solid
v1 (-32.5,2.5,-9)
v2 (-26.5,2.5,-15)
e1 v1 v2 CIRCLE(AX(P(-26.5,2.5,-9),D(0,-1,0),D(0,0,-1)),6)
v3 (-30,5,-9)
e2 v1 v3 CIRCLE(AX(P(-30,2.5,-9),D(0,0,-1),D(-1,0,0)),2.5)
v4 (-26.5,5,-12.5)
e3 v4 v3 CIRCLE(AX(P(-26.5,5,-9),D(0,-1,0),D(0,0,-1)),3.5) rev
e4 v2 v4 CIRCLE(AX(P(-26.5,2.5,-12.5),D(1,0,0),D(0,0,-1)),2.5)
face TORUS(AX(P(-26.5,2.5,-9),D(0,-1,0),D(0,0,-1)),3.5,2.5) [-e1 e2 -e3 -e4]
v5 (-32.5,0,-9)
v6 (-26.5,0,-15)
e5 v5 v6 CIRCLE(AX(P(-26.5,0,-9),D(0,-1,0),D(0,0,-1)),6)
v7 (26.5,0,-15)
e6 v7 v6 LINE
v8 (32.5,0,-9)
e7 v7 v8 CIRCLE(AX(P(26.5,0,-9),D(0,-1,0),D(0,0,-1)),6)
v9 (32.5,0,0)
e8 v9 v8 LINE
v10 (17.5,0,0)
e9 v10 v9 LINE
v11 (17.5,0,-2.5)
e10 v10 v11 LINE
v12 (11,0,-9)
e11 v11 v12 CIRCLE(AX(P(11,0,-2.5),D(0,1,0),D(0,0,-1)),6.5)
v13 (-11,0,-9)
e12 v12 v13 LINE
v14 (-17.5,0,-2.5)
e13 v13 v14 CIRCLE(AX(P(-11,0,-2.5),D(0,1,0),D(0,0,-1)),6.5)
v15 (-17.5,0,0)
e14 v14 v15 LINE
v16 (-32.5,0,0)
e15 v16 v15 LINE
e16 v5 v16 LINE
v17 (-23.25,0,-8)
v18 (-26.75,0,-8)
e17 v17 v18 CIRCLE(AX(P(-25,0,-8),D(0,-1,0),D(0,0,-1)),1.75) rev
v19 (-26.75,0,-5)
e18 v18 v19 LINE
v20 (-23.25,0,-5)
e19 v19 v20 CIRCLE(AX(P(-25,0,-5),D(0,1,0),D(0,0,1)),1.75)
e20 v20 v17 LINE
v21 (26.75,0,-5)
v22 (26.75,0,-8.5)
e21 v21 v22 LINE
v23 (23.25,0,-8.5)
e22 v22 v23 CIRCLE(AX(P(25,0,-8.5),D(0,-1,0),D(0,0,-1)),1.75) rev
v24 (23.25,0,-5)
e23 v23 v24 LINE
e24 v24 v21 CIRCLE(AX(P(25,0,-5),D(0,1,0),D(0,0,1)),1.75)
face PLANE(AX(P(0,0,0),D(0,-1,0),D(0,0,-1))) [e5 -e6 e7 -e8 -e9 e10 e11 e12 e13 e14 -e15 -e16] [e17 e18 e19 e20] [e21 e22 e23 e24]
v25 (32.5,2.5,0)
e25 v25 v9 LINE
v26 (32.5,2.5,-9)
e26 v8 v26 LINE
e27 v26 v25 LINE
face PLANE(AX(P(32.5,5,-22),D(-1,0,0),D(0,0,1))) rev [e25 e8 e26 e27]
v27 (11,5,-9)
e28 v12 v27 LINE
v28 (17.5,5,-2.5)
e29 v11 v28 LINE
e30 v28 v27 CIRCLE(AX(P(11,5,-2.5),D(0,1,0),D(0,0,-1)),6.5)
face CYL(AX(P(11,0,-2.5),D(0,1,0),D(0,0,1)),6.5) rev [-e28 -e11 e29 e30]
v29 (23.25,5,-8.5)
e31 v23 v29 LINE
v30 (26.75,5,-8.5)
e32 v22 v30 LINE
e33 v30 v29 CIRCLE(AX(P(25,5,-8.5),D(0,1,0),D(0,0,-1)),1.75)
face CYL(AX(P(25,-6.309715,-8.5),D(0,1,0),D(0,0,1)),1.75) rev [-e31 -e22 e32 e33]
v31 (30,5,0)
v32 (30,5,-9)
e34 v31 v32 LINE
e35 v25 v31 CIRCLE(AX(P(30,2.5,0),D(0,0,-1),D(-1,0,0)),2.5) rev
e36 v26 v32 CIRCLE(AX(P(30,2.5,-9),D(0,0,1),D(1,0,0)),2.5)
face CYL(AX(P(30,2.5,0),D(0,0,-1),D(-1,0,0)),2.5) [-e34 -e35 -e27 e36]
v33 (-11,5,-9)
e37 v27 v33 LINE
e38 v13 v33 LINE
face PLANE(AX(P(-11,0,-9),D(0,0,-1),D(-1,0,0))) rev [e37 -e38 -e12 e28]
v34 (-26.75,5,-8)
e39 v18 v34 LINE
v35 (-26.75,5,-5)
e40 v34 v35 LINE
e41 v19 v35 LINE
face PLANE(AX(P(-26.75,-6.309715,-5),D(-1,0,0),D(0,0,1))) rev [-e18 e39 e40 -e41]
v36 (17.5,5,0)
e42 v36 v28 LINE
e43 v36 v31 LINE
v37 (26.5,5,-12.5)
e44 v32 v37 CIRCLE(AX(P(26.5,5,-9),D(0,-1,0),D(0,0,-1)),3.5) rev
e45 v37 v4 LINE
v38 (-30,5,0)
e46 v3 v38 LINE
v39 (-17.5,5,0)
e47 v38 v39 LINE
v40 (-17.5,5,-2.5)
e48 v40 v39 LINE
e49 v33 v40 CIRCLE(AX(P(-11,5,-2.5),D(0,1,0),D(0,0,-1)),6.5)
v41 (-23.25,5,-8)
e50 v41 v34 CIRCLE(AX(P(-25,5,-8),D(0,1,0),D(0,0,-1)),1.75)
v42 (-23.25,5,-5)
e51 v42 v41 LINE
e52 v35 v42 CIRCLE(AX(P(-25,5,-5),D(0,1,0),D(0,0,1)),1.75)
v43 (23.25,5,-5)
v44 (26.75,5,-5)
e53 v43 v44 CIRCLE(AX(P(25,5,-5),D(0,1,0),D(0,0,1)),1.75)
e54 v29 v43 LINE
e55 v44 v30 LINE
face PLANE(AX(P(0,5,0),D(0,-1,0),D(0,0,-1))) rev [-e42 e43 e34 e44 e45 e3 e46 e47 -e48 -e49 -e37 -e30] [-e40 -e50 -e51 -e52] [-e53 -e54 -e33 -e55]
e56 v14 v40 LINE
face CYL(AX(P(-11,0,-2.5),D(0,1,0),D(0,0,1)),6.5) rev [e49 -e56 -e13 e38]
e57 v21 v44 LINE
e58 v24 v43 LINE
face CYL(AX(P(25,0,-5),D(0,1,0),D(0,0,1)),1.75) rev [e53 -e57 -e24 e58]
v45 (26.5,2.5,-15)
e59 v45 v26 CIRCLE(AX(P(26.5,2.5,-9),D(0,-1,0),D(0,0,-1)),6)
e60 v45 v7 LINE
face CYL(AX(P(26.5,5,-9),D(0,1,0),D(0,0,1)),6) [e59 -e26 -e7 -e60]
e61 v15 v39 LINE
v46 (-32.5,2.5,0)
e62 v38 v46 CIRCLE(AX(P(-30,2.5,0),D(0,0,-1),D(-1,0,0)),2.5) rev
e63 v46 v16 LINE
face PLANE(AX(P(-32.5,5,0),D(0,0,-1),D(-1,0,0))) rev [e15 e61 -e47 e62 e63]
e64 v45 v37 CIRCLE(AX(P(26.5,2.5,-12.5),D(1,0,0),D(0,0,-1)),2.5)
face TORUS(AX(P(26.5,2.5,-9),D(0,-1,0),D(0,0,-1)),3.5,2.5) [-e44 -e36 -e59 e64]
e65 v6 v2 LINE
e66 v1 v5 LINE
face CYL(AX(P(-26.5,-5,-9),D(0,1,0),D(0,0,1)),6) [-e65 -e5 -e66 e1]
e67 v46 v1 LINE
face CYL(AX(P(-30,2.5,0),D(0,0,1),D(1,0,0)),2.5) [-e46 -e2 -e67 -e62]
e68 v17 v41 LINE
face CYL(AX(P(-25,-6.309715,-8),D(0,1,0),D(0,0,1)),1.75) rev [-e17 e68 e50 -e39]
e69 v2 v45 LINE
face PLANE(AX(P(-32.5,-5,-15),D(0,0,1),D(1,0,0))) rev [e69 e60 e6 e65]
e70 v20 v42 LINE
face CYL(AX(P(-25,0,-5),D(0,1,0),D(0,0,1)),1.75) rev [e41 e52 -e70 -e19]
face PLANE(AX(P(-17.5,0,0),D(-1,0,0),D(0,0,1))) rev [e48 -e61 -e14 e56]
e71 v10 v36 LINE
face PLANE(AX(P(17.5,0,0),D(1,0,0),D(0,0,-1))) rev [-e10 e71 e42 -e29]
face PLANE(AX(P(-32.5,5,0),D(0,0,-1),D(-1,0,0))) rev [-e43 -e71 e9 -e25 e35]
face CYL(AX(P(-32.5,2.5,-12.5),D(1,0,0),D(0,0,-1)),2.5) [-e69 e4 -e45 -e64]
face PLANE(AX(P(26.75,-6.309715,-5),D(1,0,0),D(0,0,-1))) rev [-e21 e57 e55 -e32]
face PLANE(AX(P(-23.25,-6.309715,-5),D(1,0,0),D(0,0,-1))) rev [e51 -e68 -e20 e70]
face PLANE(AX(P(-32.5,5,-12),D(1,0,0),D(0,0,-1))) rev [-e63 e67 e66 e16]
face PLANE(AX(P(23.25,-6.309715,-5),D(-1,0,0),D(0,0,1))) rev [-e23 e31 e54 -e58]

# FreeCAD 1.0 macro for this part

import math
import FreeCAD as App
import Part
import Sketcher


def edges_at(feature, points):
    """Names of the edges that pass closest to the given points."""
    edges = feature.Shape.Edges
    near = lambda p: min(range(len(edges)), key=lambda i: edges[i].distToShape(Part.Vertex(*p))[0])
    return sorted({f"Edge{near(p) + 1}" for p in points})

doc = App.newDocument("Part")
body = doc.addObject("PartDesign::Body", "Body")

# Sketch on XZ plane
sketch1 = doc.addObject("Sketcher::SketchObject", "Sketch")
body.addObject(sketch1)
sketch1.AttachmentSupport = (doc.XZ_Plane, [""])
sketch1.MapMode = "FlatFace"
sketch1.addGeometry([
    Part.LineSegment(App.Vector(-32, -22, 0), App.Vector(-32, 0, 0)),
    Part.LineSegment(App.Vector(-32, 0, 0), App.Vector(32, 0, 0)),
    Part.LineSegment(App.Vector(32, 0, 0), App.Vector(32, -22, 0)),
    Part.LineSegment(App.Vector(32, -22, 0), App.Vector(-32, -22, 0)),
], False)
sketch1.addConstraint([
    Sketcher.Constraint("Coincident", 0, 2, 1, 1),
    Sketcher.Constraint("Coincident", 1, 2, 2, 1),
    Sketcher.Constraint("Coincident", 2, 2, 3, 1),
    Sketcher.Constraint("Coincident", 3, 2, 0, 1),
    Sketcher.Constraint("Vertical", 0),
    Sketcher.Constraint("Horizontal", 1),
    Sketcher.Constraint("Vertical", 2),
    Sketcher.Constraint("Horizontal", 3),
    Sketcher.Constraint("Symmetric", 0, 2, 1, 2, -1, 1),
    Sketcher.Constraint("DistanceX", 1, 1, 1, 2, 65.0),
    Sketcher.Constraint("DistanceY", 0, 1, 0, 2, 22.0),
])
pad1 = doc.addObject("PartDesign::Pad", "Pad")
body.addObject(pad1)
pad1.Profile = sketch1
pad1.Length = 5
pad1.Reversed = True

# Sketch on XZ plane
sketch2 = doc.addObject("Sketcher::SketchObject", "Sketch001")
body.addObject(sketch2)
sketch2.AttachmentSupport = (doc.XZ_Plane, [""])
sketch2.MapMode = "FlatFace"
sketch2.AttachmentOffset = App.Placement(App.Vector(0, 0, -5), App.Rotation())
sketch2.addGeometry([
    Part.Circle(App.Vector(-25, -5, 0), App.Vector(0, 0, 1), 1.8),  # 0
    Part.Circle(App.Vector(0, -15.5, 0), App.Vector(0, 0, 1), 1.8),  # 1
    Part.Circle(App.Vector(25, -5, 0), App.Vector(0, 0, 1), 1.8),  # 2
    Part.LineSegment(App.Vector(-17.5, 0, 0), App.Vector(17.5, 0, 0)),  # 3
    Part.LineSegment(App.Vector(17.5, 0, 0), App.Vector(17.5, -2.5, 0)),  # 4
    Part.ArcOfCircle(Part.Circle(App.Vector(11, -2.5, 0), App.Vector(0, 0, 1), 6.5), math.radians(-90), math.radians(0)),  # 5
    Part.LineSegment(App.Vector(11, -9, 0), App.Vector(-11, -9, 0)),  # 6
    Part.ArcOfCircle(Part.Circle(App.Vector(-11, -2.5, 0), App.Vector(0, 0, 1), 6.5), math.radians(180), math.radians(270)),  # 7
    Part.LineSegment(App.Vector(-17.5, -2.5, 0), App.Vector(-17.5, 0, 0)),  # 8
], False)
sketch2.addConstraint([
    Sketcher.Constraint("Coincident", 3, 2, 4, 1),
    Sketcher.Constraint("Tangent", 4, 2, 5, 2),
    Sketcher.Constraint("Tangent", 5, 1, 6, 1),
    Sketcher.Constraint("Tangent", 6, 2, 7, 2),
    Sketcher.Constraint("Tangent", 7, 1, 8, 1),
    Sketcher.Constraint("Coincident", 8, 2, 3, 1),
    Sketcher.Constraint("Horizontal", 3),
    Sketcher.Constraint("Vertical", 4),
    Sketcher.Constraint("Horizontal", 6),
    Sketcher.Constraint("Vertical", 8),
    Sketcher.Constraint("Equal", 0, 1),
    Sketcher.Constraint("Equal", 1, 2),
    Sketcher.Constraint("Equal", 5, 7),
    Sketcher.Constraint("Symmetric", 3, 2, 8, 2, -1, 1),
    Sketcher.Constraint("Symmetric", 0, 3, 2, 3, -2),
    Sketcher.Constraint("PointOnObject", 1, 3, -2),
    Sketcher.Constraint("Diameter", 0, 3.5),
    Sketcher.Constraint("Radius", 5, 6.5),
    Sketcher.Constraint("DistanceX", 3, 1, 3, 2, 35.0),
    Sketcher.Constraint("DistanceY", 4, 2, 4, 1, 2.5),
    Sketcher.Constraint("DistanceX", 0, 3, -1, 1, 25.0),
    Sketcher.Constraint("DistanceY", 0, 3, -1, 1, 5.0),
    Sketcher.Constraint("DistanceY", 1, 3, 5, 3, 13.0),
])
pocket1 = doc.addObject("PartDesign::Pocket", "Pocket")
body.addObject(pocket1)
pocket1.Profile = sketch2
pocket1.Length = 5
pocket1.Reversed = True

# Sketch on XZ plane
sketch3 = doc.addObject("Sketcher::SketchObject", "Sketch002")
body.addObject(sketch3)
sketch3.AttachmentSupport = (doc.XZ_Plane, [""])
sketch3.MapMode = "FlatFace"
sketch3.AttachmentOffset = App.Placement(App.Vector(0, 0, -5), App.Rotation())
sketch3.addGeometry([
    Part.LineSegment(App.Vector(-26.8, -8, 0), App.Vector(-26.8, -5, 0)),  # 0
    Part.LineSegment(App.Vector(-26.8, -5, 0), App.Vector(-23.2, -5, 0)),  # 1
    Part.LineSegment(App.Vector(-23.2, -5, 0), App.Vector(-23.2, -8, 0)),  # 2
    Part.ArcOfCircle(Part.Circle(App.Vector(-25, -8, 0), App.Vector(0, 0, 1), 1.8), math.radians(180), math.radians(360)),  # 3
    Part.LineSegment(App.Vector(23.2, -5, 0), App.Vector(26.8, -5, 0)),  # 4
    Part.LineSegment(App.Vector(26.8, -5, 0), App.Vector(26.8, -8.5, 0)),  # 5
    Part.ArcOfCircle(Part.Circle(App.Vector(25, -8.5, 0), App.Vector(0, 0, 1), 1.8), math.radians(180), math.radians(360)),  # 6
    Part.LineSegment(App.Vector(23.2, -8.5, 0), App.Vector(23.2, -5, 0)),  # 7
], False)
sketch3.addConstraint([
    Sketcher.Constraint("Coincident", 0, 2, 1, 1),
    Sketcher.Constraint("Coincident", 1, 2, 2, 1),
    Sketcher.Constraint("Tangent", 2, 2, 3, 2),
    Sketcher.Constraint("Tangent", 3, 1, 0, 1),
    Sketcher.Constraint("Coincident", 4, 2, 5, 1),
    Sketcher.Constraint("Tangent", 5, 2, 6, 2),
    Sketcher.Constraint("Tangent", 6, 1, 7, 1),
    Sketcher.Constraint("Coincident", 7, 2, 4, 1),
    Sketcher.Constraint("Vertical", 0),
    Sketcher.Constraint("Horizontal", 1),
    Sketcher.Constraint("Vertical", 2),
    Sketcher.Constraint("Horizontal", 4),
    Sketcher.Constraint("Vertical", 5),
    Sketcher.Constraint("Vertical", 7),
    Sketcher.Constraint("Equal", 3, 6),
    Sketcher.Constraint("Symmetric", 0, 2, 4, 2, -2),
    Sketcher.Constraint("Equal", 4, 5),
    Sketcher.Constraint("DistanceY", 0, 1, 0, 2, 3.0),
    Sketcher.Constraint("Radius", 3, 1.75),
    Sketcher.Constraint("DistanceX", 3, 3, -1, 1, 25.0),
    Sketcher.Constraint("DistanceY", 3, 3, -1, 1, 8.0),
])
pocket2 = doc.addObject("PartDesign::Pocket", "Pocket001")
body.addObject(pocket2)
pocket2.Profile = sketch3
pocket2.Length = 5
pocket2.Reversed = True

# Sketch on XZ plane
sketch4 = doc.addObject("Sketcher::SketchObject", "Sketch003")
body.addObject(sketch4)
sketch4.AttachmentSupport = (doc.XZ_Plane, [""])
sketch4.MapMode = "FlatFace"
sketch4.AttachmentOffset = App.Placement(App.Vector(0, 0, -5), App.Rotation())
sketch4.addGeometry(Part.Circle(App.Vector(0, -15.5, 0), App.Vector(0, 0, 1), 1.8), False)
sketch4.addConstraint([
    Sketcher.Constraint("PointOnObject", 0, 3, -2),
    Sketcher.Constraint("Diameter", 0, 3.5),
    Sketcher.Constraint("DistanceY", 0, 3, -1, 1, 15.5),
])
pad2 = doc.addObject("PartDesign::Pad", "Pad001")
body.addObject(pad2)
pad2.Profile = sketch4
pad2.Length = 5

# Sketch on XZ plane
sketch5 = doc.addObject("Sketcher::SketchObject", "Sketch004")
body.addObject(sketch5)
sketch5.AttachmentSupport = (doc.XZ_Plane, [""])
sketch5.MapMode = "FlatFace"
sketch5.AttachmentOffset = App.Placement(App.Vector(0, 0, -5), App.Rotation())
sketch5.addGeometry([
    Part.LineSegment(App.Vector(-32, -22, 0), App.Vector(-32, -15, 0)),
    Part.LineSegment(App.Vector(-32, -15, 0), App.Vector(32, -15, 0)),
    Part.LineSegment(App.Vector(32, -15, 0), App.Vector(32, -22, 0)),
    Part.LineSegment(App.Vector(32, -22, 0), App.Vector(-32, -22, 0)),
], False)
sketch5.addConstraint([
    Sketcher.Constraint("Coincident", 0, 2, 1, 1),
    Sketcher.Constraint("Coincident", 1, 2, 2, 1),
    Sketcher.Constraint("Coincident", 2, 2, 3, 1),
    Sketcher.Constraint("Coincident", 3, 2, 0, 1),
    Sketcher.Constraint("Vertical", 0),
    Sketcher.Constraint("Horizontal", 1),
    Sketcher.Constraint("Vertical", 2),
    Sketcher.Constraint("Horizontal", 3),
    Sketcher.Constraint("DistanceX", 1, 1, 1, 2, 65.0),
    Sketcher.Constraint("DistanceY", 0, 1, 0, 2, 7.0),
    Sketcher.Constraint("DistanceY", 0, 2, -1, 1, 15.0),
    Sketcher.Constraint("DistanceX", 0, 2, -1, 1, 32.5),
])
pocket3 = doc.addObject("PartDesign::Pocket", "Pocket002")
body.addObject(pocket3)
pocket3.Profile = sketch5
pocket3.Length = 10
pocket3.Reversed = True
doc.recompute()

fillet = doc.addObject("PartDesign::Fillet", "Fillet")
body.addObject(fillet)
fillet.Base = (pocket3, edges_at(pocket3, [(-32.5, 2.5, -15), (32.5, 2.5, -15)]))
fillet.Radius = 6
doc.recompute()

fillet2 = doc.addObject("PartDesign::Fillet", "Fillet001")
body.addObject(fillet2)
fillet2.Base = (fillet, edges_at(fillet, [
    (0, 5, -15),
    (-32.5, 5, -4.5),
    (-30.743, 5, -13.243),
    (30.743, 5, -13.243),
    (32.5, 5, -4.5),
]))
fillet2.Radius = 2.5

doc.recompute()
